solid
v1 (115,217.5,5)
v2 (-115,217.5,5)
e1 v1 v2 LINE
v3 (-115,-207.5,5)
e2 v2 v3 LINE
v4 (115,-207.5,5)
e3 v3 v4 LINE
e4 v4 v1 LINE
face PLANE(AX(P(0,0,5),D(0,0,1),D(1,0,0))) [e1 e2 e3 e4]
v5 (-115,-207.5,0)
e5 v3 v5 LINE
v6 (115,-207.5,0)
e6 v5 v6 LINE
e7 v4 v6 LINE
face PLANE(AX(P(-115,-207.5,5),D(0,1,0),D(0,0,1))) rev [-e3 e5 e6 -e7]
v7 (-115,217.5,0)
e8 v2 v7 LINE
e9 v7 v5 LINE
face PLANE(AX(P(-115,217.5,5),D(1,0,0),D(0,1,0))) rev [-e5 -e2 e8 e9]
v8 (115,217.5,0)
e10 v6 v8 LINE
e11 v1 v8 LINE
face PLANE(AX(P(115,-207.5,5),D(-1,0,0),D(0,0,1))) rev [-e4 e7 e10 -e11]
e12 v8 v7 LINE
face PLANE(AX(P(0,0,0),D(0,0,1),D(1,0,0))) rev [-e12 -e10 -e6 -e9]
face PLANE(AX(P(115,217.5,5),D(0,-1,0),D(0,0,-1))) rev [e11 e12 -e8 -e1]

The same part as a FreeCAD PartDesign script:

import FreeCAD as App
import Part
import Sketcher

V = App.Vector
Q = App.Units.Quantity


def add_polygon(sketch, points):
    """Adds a closed chain of lines whose ends are joined by coincident constraints."""
    first, n = sketch.GeometryCount, len(points)
    for a, b in zip(points, points[1:] + points[:1]):
        sketch.addGeometry(Part.LineSegment(App.Vector(*a, 0), App.Vector(*b, 0)), False)
    for i in range(n):
        sketch.addConstraint(Sketcher.Constraint("Coincident", first + i, 2, first + (i + 1) % n, 1))

doc = App.newDocument("Part")
body = doc.addObject("PartDesign::Body", "Body")

# Sketch on XY plane
sketch1 = body.newObject("Sketcher::SketchObject", "Sketch")
sketch1.AttachmentSupport = (doc.getObject("XY_Plane"), [""])
sketch1.MapMode = "FlatFace"
add_polygon(sketch1, [(-115, 217.5), (-115, -207.5), (115, -207.5), (115, 217.5)])  # lines 0-3
sketch1.addConstraint(Sketcher.Constraint("Vertical", 0))
sketch1.addConstraint(Sketcher.Constraint("Horizontal", 1))
sketch1.addConstraint(Sketcher.Constraint("Vertical", 2))
sketch1.addConstraint(Sketcher.Constraint("Horizontal", 3))
sketch1.addConstraint(Sketcher.Constraint("DistanceX", 1, 1, 1, 2, Q("230 mm")))
sketch1.addConstraint(Sketcher.Constraint("DistanceY", 0, 2, 0, 1, Q("425 mm")))
sketch1.addConstraint(Sketcher.Constraint("DistanceX", 0, 2, -1, 1, Q("115 mm")))
sketch1.addConstraint(Sketcher.Constraint("DistanceY", 0, 2, -1, 1, Q("207.5 mm")))
pad1 = body.newObject("PartDesign::Pad", "Pad")
pad1.Profile = sketch1
pad1.Length = 5

doc.recompute()
